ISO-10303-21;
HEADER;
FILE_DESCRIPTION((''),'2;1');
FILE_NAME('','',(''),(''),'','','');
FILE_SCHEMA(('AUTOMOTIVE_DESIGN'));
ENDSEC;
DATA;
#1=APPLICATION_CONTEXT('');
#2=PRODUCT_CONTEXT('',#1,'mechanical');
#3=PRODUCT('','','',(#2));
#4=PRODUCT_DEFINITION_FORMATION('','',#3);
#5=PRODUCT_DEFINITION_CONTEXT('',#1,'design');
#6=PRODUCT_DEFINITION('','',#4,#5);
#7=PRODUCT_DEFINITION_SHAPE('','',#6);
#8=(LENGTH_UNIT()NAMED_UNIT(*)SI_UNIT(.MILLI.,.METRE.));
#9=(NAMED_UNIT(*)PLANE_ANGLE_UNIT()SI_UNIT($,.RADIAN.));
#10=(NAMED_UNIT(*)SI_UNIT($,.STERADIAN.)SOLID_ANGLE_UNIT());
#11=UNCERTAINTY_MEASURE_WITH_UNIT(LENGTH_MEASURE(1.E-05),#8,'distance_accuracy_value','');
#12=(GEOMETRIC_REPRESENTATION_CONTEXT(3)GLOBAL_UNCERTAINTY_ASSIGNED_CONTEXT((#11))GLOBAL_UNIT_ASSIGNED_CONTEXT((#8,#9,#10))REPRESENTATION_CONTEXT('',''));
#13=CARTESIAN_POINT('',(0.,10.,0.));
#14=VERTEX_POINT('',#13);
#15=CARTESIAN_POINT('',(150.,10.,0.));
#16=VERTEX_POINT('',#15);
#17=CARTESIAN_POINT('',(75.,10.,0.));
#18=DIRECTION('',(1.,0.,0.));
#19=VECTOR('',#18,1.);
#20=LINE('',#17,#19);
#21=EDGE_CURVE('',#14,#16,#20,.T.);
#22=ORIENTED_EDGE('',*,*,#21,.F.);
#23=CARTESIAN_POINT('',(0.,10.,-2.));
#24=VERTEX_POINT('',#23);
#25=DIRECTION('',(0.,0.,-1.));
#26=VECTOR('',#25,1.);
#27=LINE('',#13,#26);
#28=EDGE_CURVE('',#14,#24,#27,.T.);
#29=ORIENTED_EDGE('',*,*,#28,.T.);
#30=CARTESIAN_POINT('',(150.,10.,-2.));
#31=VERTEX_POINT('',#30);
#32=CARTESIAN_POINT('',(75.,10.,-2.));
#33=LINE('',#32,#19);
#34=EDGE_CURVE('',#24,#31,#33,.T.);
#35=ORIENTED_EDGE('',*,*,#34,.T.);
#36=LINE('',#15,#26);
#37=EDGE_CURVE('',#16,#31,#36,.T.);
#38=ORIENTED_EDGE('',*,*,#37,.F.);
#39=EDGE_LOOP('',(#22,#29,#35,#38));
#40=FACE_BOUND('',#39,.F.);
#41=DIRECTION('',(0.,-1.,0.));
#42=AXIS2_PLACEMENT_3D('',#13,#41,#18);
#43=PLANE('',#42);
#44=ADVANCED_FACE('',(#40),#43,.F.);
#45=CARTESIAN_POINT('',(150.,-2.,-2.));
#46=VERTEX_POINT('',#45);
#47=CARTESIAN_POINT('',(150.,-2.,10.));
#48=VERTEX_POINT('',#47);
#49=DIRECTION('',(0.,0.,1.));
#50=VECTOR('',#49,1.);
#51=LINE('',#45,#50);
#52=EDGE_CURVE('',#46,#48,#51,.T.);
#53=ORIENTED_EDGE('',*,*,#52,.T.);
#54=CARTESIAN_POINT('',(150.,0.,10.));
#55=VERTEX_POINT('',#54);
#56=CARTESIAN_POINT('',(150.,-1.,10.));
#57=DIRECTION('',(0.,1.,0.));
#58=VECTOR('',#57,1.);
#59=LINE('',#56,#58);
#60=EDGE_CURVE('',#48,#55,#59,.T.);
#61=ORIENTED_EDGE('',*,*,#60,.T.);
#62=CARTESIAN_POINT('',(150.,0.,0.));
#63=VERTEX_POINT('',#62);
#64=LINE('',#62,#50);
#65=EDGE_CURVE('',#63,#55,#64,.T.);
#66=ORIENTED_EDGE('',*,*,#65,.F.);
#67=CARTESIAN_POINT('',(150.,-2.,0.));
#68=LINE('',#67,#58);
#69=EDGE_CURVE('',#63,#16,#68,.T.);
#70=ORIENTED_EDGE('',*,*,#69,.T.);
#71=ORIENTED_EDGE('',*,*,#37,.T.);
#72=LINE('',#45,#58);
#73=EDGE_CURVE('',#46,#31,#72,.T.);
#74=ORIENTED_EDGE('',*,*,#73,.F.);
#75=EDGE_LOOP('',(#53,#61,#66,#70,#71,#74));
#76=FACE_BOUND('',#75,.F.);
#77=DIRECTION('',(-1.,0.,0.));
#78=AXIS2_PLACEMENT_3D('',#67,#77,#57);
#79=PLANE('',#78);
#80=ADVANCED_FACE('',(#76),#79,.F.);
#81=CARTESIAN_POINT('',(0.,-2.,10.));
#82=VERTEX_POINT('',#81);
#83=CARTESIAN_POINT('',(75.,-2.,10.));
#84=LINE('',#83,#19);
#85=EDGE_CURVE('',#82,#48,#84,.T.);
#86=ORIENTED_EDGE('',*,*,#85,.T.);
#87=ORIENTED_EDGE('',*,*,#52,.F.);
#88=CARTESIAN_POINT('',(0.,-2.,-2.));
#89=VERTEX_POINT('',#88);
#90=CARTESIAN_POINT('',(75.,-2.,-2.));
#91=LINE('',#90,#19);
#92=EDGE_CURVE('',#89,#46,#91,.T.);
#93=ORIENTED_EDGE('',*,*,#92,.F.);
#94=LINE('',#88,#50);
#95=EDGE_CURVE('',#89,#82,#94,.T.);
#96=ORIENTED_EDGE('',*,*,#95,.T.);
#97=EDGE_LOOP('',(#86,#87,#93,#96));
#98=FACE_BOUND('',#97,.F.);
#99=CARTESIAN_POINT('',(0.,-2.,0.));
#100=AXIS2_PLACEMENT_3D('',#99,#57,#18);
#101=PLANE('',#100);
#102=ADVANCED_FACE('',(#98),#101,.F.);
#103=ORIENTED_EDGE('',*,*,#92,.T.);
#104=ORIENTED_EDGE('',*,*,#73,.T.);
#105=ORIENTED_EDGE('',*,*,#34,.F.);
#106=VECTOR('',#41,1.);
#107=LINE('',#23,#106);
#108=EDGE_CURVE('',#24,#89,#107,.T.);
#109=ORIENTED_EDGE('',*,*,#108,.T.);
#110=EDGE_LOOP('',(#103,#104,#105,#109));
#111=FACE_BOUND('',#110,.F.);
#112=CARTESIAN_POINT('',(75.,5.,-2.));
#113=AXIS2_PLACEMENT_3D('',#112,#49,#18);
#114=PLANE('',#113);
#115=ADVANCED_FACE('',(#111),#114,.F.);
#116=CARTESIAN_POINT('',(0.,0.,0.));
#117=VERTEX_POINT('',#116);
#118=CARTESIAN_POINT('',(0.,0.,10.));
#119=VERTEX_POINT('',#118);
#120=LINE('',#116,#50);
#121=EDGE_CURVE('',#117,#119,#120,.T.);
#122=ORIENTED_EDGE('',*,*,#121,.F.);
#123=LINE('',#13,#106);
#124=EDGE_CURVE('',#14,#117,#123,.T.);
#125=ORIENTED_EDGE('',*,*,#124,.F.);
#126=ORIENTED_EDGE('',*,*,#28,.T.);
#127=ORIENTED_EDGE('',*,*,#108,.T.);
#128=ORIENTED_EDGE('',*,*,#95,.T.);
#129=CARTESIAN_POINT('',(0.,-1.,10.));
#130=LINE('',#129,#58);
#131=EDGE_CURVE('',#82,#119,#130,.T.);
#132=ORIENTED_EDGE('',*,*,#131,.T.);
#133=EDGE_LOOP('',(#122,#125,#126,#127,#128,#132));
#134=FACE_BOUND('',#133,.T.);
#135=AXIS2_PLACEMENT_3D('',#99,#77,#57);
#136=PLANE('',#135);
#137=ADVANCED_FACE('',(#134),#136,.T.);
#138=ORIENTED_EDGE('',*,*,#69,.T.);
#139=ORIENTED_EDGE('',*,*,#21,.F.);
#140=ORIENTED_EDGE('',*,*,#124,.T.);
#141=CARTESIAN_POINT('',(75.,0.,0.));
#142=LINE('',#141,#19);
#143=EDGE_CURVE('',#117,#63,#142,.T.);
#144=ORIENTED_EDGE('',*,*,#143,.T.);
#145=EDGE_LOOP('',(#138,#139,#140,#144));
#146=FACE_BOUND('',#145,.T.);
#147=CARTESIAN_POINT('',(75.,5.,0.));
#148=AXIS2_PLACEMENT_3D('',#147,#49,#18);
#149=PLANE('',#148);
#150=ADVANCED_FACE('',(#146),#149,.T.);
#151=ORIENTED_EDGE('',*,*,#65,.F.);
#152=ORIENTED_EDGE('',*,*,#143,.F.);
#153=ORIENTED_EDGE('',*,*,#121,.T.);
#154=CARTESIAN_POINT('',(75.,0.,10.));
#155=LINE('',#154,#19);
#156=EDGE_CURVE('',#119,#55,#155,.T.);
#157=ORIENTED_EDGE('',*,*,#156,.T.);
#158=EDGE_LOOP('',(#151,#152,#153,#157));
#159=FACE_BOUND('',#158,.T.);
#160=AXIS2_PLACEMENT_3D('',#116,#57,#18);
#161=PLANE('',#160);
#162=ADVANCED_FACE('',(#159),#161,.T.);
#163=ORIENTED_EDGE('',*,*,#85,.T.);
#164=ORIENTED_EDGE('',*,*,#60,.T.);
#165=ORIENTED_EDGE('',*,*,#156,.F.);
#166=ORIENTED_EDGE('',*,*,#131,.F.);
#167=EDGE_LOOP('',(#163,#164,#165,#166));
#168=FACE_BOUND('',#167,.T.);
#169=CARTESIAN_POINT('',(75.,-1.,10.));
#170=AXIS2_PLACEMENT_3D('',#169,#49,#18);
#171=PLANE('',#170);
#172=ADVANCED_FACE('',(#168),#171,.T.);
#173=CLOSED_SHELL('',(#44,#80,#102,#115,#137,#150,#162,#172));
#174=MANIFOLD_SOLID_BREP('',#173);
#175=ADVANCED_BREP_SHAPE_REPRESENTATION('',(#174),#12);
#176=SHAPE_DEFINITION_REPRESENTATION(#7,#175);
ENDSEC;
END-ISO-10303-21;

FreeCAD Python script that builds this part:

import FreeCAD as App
import Part
import Sketcher
Q = App.Units.Quantity

doc = App.newDocument("Part")
body = doc.addObject("PartDesign::Body", "Body")

sketch1 = doc.addObject("Sketcher::SketchObject", "Sketch")
body.addObject(sketch1)
sketch1.AttachmentSupport = (doc.XY_Plane, [""])
sketch1.MapMode = "FlatFace"
sketch1.addGeometry([
    Part.LineSegment(App.Vector(0, 10, 0), App.Vector(0, -2, 0)),
    Part.LineSegment(App.Vector(0, -2, 0), App.Vector(150, -2, 0)),
    Part.LineSegment(App.Vector(150, -2, 0), App.Vector(150, 10, 0)),
    Part.LineSegment(App.Vector(150, 10, 0), App.Vector(0, 10, 0)),
], False)
sketch1.addConstraint([
    Sketcher.Constraint("Coincident", 0, 2, 1, 1),
    Sketcher.Constraint("Coincident", 1, 2, 2, 1),
    Sketcher.Constraint("Coincident", 2, 2, 3, 1),
    Sketcher.Constraint("Coincident", 3, 2, 0, 1),
    Sketcher.Constraint("Vertical", 0),
    Sketcher.Constraint("Horizontal", 1),
    Sketcher.Constraint("Vertical", 2),
    Sketcher.Constraint("Horizontal", 3),
    Sketcher.Constraint("PointOnObject", 0, 2, -2),
    Sketcher.Constraint("DistanceX", 1, 1, 1, 2, Q("150 mm")),
    Sketcher.Constraint("DistanceY", 0, 2, 0, 1, Q("12 mm")),
    Sketcher.Constraint("DistanceY", 0, 2, -1, 1, Q("2 mm")),
])
pad1 = doc.addObject("PartDesign::Pad", "Pad")
body.addObject(pad1)
pad1.Profile = sketch1
pad1.Length = 2
pad1.Reversed = True

sketch2 = doc.addObject("Sketcher::SketchObject", "Sketch001")
body.addObject(sketch2)
sketch2.AttachmentSupport = (doc.XY_Plane, [""])
sketch2.MapMode = "FlatFace"
sketch2.addGeometry([
    Part.LineSegment(App.Vector(0, 0, 0), App.Vector(0, -2, 0)),
    Part.LineSegment(App.Vector(0, -2, 0), App.Vector(150, -2, 0)),
    Part.LineSegment(App.Vector(150, -2, 0), App.Vector(150, 0, 0)),
    Part.LineSegment(App.Vector(150, 0, 0), App.Vector(0, 0, 0)),
], False)
sketch2.addConstraint([
    Sketcher.Constraint("Coincident", 0, 2, 1, 1),
    Sketcher.Constraint("Coincident", 1, 2, 2, 1),
    Sketcher.Constraint("Coincident", 2, 2, 3, 1),
    Sketcher.Constraint("Coincident", 3, 2, 0, 1),
    Sketcher.Constraint("Vertical", 0),
    Sketcher.Constraint("Horizontal", 1),
    Sketcher.Constraint("Vertical", 2),
    Sketcher.Constraint("Horizontal", 3),
    Sketcher.Constraint("Coincident", 3, 2, -1, 1),
    Sketcher.Constraint("DistanceX", 1, 1, 1, 2, Q("150 mm")),
    Sketcher.Constraint("DistanceY", 0, 2, 0, 1, Q("2 mm")),
])
pad2 = doc.addObject("PartDesign::Pad", "Pad001")
body.addObject(pad2)
pad2.Profile = sketch2
pad2.Length = 10

doc.recompute()
